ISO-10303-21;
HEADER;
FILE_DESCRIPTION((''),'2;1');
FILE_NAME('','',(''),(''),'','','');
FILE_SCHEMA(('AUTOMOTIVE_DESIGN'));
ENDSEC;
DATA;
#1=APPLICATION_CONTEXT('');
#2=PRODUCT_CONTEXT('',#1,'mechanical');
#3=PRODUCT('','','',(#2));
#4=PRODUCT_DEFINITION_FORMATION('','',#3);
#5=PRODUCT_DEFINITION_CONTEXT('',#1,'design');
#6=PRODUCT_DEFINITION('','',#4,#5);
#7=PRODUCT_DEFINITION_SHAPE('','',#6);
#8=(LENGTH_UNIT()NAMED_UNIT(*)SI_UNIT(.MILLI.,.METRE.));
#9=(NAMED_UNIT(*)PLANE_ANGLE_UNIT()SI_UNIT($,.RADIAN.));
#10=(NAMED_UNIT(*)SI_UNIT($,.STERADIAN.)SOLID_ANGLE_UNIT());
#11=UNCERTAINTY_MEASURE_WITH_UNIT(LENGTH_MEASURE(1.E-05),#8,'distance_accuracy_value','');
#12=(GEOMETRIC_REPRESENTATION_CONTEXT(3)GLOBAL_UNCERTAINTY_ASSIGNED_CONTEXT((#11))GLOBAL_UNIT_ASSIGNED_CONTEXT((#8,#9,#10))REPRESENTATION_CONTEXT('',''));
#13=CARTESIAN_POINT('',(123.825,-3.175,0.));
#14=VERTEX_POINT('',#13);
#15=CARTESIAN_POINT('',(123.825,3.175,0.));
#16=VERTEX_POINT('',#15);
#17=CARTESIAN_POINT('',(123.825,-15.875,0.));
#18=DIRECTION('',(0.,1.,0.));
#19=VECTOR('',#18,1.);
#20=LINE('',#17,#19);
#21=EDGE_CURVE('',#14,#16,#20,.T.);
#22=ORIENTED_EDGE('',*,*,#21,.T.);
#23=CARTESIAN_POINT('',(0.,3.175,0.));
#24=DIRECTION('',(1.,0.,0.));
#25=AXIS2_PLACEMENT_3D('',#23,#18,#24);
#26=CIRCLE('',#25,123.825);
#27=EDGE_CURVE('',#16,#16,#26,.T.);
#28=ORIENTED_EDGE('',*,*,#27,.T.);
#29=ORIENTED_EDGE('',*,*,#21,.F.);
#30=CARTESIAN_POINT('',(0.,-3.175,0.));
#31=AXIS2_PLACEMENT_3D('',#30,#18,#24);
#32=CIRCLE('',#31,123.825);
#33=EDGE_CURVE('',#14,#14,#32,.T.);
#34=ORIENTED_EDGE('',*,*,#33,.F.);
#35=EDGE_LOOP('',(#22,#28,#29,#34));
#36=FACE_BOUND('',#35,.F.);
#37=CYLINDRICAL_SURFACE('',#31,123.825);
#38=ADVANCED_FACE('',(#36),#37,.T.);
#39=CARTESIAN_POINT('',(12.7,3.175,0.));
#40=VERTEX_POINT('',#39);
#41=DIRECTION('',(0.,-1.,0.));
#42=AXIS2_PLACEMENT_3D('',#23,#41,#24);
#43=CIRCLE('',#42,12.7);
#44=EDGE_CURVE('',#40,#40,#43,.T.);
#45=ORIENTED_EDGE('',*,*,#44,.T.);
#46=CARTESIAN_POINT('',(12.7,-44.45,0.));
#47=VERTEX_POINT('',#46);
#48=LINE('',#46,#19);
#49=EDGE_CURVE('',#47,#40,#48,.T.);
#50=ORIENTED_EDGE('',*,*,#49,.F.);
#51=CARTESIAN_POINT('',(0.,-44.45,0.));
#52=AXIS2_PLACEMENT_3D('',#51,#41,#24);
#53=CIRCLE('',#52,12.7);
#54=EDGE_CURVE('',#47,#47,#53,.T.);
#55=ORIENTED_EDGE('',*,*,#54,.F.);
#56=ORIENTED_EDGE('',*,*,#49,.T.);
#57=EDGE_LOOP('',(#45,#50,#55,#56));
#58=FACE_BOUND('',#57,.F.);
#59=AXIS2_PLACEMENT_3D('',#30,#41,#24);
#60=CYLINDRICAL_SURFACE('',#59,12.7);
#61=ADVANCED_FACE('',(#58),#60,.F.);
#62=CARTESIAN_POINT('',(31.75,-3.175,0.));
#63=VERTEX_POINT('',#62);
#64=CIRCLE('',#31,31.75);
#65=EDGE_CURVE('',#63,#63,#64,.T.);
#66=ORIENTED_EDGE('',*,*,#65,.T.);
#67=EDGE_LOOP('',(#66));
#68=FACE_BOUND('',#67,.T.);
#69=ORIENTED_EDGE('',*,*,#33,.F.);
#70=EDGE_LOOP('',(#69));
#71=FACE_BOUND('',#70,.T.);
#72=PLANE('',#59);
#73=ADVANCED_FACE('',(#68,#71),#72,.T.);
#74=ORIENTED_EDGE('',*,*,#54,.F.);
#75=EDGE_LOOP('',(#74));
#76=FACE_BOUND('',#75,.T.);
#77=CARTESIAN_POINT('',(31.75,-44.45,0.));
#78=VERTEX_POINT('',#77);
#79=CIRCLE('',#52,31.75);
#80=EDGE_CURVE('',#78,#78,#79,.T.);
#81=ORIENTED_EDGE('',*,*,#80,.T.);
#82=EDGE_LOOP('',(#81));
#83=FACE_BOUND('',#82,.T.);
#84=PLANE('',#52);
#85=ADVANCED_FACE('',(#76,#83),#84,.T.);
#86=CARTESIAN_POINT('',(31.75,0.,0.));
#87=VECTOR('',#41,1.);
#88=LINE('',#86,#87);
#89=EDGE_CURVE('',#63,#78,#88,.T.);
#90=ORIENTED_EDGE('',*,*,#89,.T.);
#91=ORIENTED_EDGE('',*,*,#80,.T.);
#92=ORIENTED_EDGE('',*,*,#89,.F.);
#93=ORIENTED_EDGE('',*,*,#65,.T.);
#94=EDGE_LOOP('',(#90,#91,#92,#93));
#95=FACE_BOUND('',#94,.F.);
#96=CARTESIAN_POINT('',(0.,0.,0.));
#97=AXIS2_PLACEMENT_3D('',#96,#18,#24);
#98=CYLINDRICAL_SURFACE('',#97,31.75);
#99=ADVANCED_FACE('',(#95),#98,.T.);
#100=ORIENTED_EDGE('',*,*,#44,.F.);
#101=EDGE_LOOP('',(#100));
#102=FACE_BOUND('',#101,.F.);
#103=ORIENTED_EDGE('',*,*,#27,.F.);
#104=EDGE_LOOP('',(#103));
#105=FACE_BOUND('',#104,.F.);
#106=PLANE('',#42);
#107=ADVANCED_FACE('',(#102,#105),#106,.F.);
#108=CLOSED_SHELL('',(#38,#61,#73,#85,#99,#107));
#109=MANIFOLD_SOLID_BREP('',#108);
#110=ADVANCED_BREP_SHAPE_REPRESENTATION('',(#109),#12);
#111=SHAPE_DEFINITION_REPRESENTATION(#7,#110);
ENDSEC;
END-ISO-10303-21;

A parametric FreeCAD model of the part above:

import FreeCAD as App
import Part
import Sketcher

V = App.Vector
Q = App.Units.Quantity

doc = App.newDocument("Part")
body = doc.addObject("PartDesign::Body", "Body")

sketch1 = body.newObject("Sketcher::SketchObject", "Sketch")
sketch1.AttachmentSupport = (doc.getObject("XZ_Plane"), [""])
sketch1.MapMode = "FlatFace"
sketch1.addGeometry([
    Part.Circle(V(0, 0, 0), V(0, 0, 1), 32),
    Part.Circle(V(0, 0, 0), V(0, 0, 1), 13),
], False)
sketch1.addConstraint([
    Sketcher.Constraint("Coincident", 0, 3, -1, 1),
    Sketcher.Constraint("Coincident", 1, 3, -1, 1),
    Sketcher.Constraint("Diameter", 1, Q("1 in")),
    Sketcher.Constraint("Diameter", 0, Q("2.5 in")),
])
pad1 = body.newObject("PartDesign::Pad", "Pad")
pad1.Profile = sketch1
pad1.Length = Q("1.75 in")

sketch2 = body.newObject("Sketcher::SketchObject", "Sketch001")
sketch2.AttachmentSupport = (doc.getObject("XZ_Plane"), [""])
sketch2.MapMode = "FlatFace"
sketch2.addGeometry(Part.Circle(V(0, 0, 0), V(0, 0, 1), 127), False)
sketch2.addConstraint([
    Sketcher.Constraint("Coincident", 0, 3, -1, 1),
    Sketcher.Constraint("Diameter", 0, Q("10 in")),
])
pad2 = body.newObject("PartDesign::Pad", "Pad001")
pad2.Profile = sketch2
pad2.Length = Q("0.25 in")
pad2.Midplane = True

sketch3 = body.newObject("Sketcher::SketchObject", "Sketch002")
sketch3.AttachmentSupport = (doc.getObject("XZ_Plane"), [""])
sketch3.MapMode = "FlatFace"
sketch3.AttachmentOffset = App.Placement(V(0, 0, 0.125 * 25.4), App.Rotation())
sketch3.addGeometry(Part.Circle(V(0, 0, 0), V(0, 0, 1), 13), False)
sketch3.addConstraint([
    Sketcher.Constraint("Coincident", 0, 3, -1, 1),
    Sketcher.Constraint("Diameter", 0, Q("1 in")),
])
pocket1 = body.newObject("PartDesign::Pocket", "Pocket")
pocket1.Profile = sketch3
pocket1.Length = Q("3 in")
pocket1.Midplane = True

sketch4 = body.newObject("Sketcher::SketchObject", "Sketch003")
sketch4.AttachmentSupport = (doc.getObject("XZ_Plane"), [""])
sketch4.MapMode = "FlatFace"
sketch4.AttachmentOffset = App.Placement(V(0, 0, 0.125 * 25.4), App.Rotation())
sketch4.addGeometry([
    Part.Circle(V(0, 0, 0), V(0, 0, 1), 127),
    Part.Circle(V(0, 0, 0), V(0, 0, 1), 124),
], False)
sketch4.addConstraint([
    Sketcher.Constraint("Coincident", 0, 3, -1, 1),
    Sketcher.Constraint("Coincident", 1, 3, -1, 1),
    Sketcher.Constraint("Diameter", 0, Q("10 in")),
    Sketcher.Constraint("Diameter", 1, Q("9.75 in")),
])
pocket2 = body.newObject("PartDesign::Pocket", "Pocket001")
pocket2.Profile = sketch4
pocket2.Length = Q("1 in")
pocket2.Midplane = True

doc.recompute()
